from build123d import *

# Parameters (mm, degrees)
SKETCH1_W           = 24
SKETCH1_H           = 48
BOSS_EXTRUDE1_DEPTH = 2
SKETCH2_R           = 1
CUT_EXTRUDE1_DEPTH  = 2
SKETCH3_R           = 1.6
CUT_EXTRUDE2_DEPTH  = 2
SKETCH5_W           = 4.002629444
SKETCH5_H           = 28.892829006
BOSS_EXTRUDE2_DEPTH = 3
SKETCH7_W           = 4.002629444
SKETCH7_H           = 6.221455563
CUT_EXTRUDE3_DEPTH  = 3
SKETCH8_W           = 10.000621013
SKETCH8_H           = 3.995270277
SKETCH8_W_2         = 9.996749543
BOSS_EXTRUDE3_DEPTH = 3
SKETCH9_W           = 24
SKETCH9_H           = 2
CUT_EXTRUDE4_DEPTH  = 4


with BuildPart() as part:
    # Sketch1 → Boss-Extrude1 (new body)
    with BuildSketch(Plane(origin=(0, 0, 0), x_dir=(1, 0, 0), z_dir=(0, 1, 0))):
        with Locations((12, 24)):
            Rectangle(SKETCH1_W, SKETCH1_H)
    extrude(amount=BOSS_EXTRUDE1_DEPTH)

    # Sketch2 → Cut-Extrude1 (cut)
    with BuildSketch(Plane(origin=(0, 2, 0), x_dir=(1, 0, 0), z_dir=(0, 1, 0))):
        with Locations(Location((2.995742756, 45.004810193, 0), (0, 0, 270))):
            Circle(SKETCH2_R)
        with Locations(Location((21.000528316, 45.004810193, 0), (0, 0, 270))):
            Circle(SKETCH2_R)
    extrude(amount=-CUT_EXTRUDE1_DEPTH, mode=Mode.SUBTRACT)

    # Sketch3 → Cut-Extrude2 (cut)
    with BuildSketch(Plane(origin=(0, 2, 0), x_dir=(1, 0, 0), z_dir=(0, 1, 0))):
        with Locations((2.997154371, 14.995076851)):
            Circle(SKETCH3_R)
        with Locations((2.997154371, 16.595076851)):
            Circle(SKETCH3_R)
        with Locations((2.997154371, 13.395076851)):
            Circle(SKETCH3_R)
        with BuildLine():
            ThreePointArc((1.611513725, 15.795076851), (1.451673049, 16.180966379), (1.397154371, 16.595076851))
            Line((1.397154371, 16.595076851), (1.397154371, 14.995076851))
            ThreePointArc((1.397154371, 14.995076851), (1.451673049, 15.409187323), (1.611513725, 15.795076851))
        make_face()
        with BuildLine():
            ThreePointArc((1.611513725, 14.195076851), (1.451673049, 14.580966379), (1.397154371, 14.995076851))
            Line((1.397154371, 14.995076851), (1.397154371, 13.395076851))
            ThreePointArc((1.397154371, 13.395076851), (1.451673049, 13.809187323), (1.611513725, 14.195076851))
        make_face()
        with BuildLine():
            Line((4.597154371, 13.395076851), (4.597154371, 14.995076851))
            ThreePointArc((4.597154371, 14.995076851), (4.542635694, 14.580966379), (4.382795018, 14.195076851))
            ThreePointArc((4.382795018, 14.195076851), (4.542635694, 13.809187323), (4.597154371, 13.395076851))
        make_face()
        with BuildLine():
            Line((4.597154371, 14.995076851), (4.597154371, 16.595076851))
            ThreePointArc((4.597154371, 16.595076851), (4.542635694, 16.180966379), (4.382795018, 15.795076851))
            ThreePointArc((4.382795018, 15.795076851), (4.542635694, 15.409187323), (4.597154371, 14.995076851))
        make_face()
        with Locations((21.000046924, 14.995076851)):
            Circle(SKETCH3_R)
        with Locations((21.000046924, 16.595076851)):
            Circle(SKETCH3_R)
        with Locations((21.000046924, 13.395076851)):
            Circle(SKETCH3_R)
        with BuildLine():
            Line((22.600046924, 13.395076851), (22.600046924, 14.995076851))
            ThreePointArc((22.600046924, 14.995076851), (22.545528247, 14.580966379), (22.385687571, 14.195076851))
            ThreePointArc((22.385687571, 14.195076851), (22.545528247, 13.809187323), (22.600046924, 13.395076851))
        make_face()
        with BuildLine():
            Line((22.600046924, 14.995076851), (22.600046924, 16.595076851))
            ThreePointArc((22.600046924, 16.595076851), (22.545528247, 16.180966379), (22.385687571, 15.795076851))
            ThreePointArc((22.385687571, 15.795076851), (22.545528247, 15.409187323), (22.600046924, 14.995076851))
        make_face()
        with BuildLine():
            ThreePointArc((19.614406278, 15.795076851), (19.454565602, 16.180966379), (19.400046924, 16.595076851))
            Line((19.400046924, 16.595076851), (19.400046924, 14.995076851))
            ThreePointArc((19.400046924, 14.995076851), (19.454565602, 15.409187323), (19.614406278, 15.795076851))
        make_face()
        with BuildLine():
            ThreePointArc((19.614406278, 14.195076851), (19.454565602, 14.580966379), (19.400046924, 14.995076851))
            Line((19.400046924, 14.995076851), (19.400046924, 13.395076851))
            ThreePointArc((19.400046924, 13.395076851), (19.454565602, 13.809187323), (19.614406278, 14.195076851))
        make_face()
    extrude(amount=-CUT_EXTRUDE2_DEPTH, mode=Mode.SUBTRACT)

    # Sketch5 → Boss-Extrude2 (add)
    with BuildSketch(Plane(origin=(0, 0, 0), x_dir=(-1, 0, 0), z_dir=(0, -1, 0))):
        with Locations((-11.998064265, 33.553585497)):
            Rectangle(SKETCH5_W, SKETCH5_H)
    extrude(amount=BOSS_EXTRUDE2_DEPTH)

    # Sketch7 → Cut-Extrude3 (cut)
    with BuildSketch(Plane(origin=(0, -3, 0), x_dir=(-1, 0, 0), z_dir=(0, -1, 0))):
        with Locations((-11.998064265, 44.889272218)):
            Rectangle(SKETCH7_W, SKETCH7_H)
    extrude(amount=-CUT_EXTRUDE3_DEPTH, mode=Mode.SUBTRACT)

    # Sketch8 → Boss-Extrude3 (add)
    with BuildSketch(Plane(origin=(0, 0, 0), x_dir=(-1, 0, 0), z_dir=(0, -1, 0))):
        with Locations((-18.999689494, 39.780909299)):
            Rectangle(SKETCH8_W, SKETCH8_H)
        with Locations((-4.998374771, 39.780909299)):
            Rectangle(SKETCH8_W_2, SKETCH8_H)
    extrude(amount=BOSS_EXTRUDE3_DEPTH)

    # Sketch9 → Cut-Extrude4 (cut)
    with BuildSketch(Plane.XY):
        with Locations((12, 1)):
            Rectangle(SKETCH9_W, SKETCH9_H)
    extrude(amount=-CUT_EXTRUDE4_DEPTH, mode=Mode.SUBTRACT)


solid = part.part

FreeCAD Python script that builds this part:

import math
import FreeCAD as App
import Part
import Sketcher
Q = App.Units.Quantity

doc = App.newDocument("Part")
body = doc.addObject("PartDesign::Body", "Body")

sketch1 = doc.addObject("Sketcher::SketchObject", "Sketch")
body.addObject(sketch1)
sketch1.AttachmentSupport = (doc.XZ_Plane, [""])
sketch1.MapMode = "FlatFace"
sketch1.addGeometry(Part.LineSegment(App.Vector(0, -48, 0), App.Vector(0, 0, 0)), False)
sketch1.addGeometry(Part.LineSegment(App.Vector(0, 0, 0), App.Vector(24, 0, 0)), False)
sketch1.addGeometry(Part.LineSegment(App.Vector(24, 0, 0), App.Vector(24, -48, 0)), False)
sketch1.addGeometry(Part.LineSegment(App.Vector(24, -48, 0), App.Vector(0, -48, 0)), False)
sketch1.addConstraint(Sketcher.Constraint("Coincident", 0, 2, 1, 1))
sketch1.addConstraint(Sketcher.Constraint("Coincident", 1, 2, 2, 1))
sketch1.addConstraint(Sketcher.Constraint("Coincident", 2, 2, 3, 1))
sketch1.addConstraint(Sketcher.Constraint("Coincident", 3, 2, 0, 1))
sketch1.addConstraint(Sketcher.Constraint("Vertical", 0))
sketch1.addConstraint(Sketcher.Constraint("Horizontal", 1))
sketch1.addConstraint(Sketcher.Constraint("Vertical", 2))
sketch1.addConstraint(Sketcher.Constraint("Horizontal", 3))
sketch1.addConstraint(Sketcher.Constraint("Coincident", 0, 2, -1, 1))
sketch1.addConstraint(Sketcher.Constraint("DistanceX", 1, 1, 1, 2, Q("24 mm")))
sketch1.addConstraint(Sketcher.Constraint("DistanceY", 0, 1, 0, 2, Q("48 mm")))
pad1 = doc.addObject("PartDesign::Pad", "Pad")
body.addObject(pad1)
pad1.Profile = sketch1
pad1.Length = 2
pad1.Reversed = True

sketch2 = doc.addObject("Sketcher::SketchObject", "Sketch001")
body.addObject(sketch2)
sketch2.AttachmentSupport = (doc.XZ_Plane, [""])
sketch2.MapMode = "FlatFace"
sketch2.AttachmentOffset = App.Placement(App.Vector(0, 0, -2), App.Rotation())
sketch2.addGeometry(Part.Circle(App.Vector(2.995743, -45.00481, 0), App.Vector(0, 0, 1), 1), False)
sketch2.addGeometry(Part.Circle(App.Vector(21.000528, -45.00481, 0), App.Vector(0, 0, 1), 1), False)
sketch2.addConstraint(Sketcher.Constraint("Equal", 0, 1))
sketch2.addConstraint(Sketcher.Constraint("Horizontal", 0, 3, 1, 3))
sketch2.addConstraint(Sketcher.Constraint("Diameter", 0, Q("2 mm")))
sketch2.addConstraint(Sketcher.Constraint("DistanceY", 0, 3, -1, 1, Q("45.00481 mm")))
sketch2.addConstraint(Sketcher.Constraint("DistanceX", -1, 1, 1, 3, Q("21.000528 mm")))
sketch2.addConstraint(Sketcher.Constraint("DistanceX", -1, 1, 0, 3, Q("2.995743 mm")))
pocket1 = doc.addObject("PartDesign::Pocket", "Pocket")
body.addObject(pocket1)
pocket1.Profile = sketch2
pocket1.Length = 2
pocket1.Reversed = True

sketch3 = doc.addObject("Sketcher::SketchObject", "Sketch002")
body.addObject(sketch3)
sketch3.AttachmentSupport = (doc.XZ_Plane, [""])
sketch3.MapMode = "FlatFace"
sketch3.AttachmentOffset = App.Placement(App.Vector(0, 0, -2), App.Rotation())
sketch3.addGeometry(Part.ArcOfCircle(Part.Circle(App.Vector(2.997154, -13.395077, 0), App.Vector(0, 0, 1), 1.6), math.radians(0), math.radians(180)), False)
sketch3.addGeometry(Part.LineSegment(App.Vector(4.597154, -13.395077, 0), App.Vector(4.597154, -16.595077, 0)), False)
sketch3.addGeometry(Part.ArcOfCircle(Part.Circle(App.Vector(2.997154, -16.595077, 0), App.Vector(0, 0, 1), 1.6), math.radians(180), math.radians(360)), False)
sketch3.addGeometry(Part.LineSegment(App.Vector(1.397154, -16.595077, 0), App.Vector(1.397154, -13.395077, 0)), False)
sketch3.addGeometry(Part.LineSegment(App.Vector(22.600047, -13.395077, 0), App.Vector(22.600047, -16.595077, 0)), False)
sketch3.addGeometry(Part.ArcOfCircle(Part.Circle(App.Vector(21.000047, -16.595077, 0), App.Vector(0, 0, 1), 1.6), math.radians(180), math.radians(360)), False)
sketch3.addGeometry(Part.LineSegment(App.Vector(19.400047, -16.595077, 0), App.Vector(19.400047, -13.395077, 0)), False)
sketch3.addGeometry(Part.ArcOfCircle(Part.Circle(App.Vector(21.000047, -13.395077, 0), App.Vector(0, 0, 1), 1.6), math.radians(0), math.radians(180)), False)
sketch3.addConstraint(Sketcher.Constraint("Tangent", 0, 1, 1, 1))
sketch3.addConstraint(Sketcher.Constraint("Tangent", 1, 2, 2, 2))
sketch3.addConstraint(Sketcher.Constraint("Tangent", 2, 1, 3, 1))
sketch3.addConstraint(Sketcher.Constraint("Tangent", 3, 2, 0, 2))
sketch3.addConstraint(Sketcher.Constraint("Tangent", 4, 2, 5, 2))
sketch3.addConstraint(Sketcher.Constraint("Tangent", 5, 1, 6, 1))
sketch3.addConstraint(Sketcher.Constraint("Tangent", 6, 2, 7, 2))
sketch3.addConstraint(Sketcher.Constraint("Tangent", 7, 1, 4, 1))
sketch3.addConstraint(Sketcher.Constraint("Vertical", 1))
sketch3.addConstraint(Sketcher.Constraint("Vertical", 3))
sketch3.addConstraint(Sketcher.Constraint("Vertical", 4))
sketch3.addConstraint(Sketcher.Constraint("Vertical", 6))
sketch3.addConstraint(Sketcher.Constraint("Equal", 2, 5))
sketch3.addConstraint(Sketcher.Constraint("Horizontal", 2, 3, 5, 3))
sketch3.addConstraint(Sketcher.Constraint("Horizontal", 0, 3, 7, 3))
sketch3.addConstraint(Sketcher.Constraint("Radius", 0, Q("1.6 mm")))
sketch3.addConstraint(Sketcher.Constraint("DistanceY", 1, 2, 1, 1, Q("3.2 mm")))
sketch3.addConstraint(Sketcher.Constraint("DistanceX", -1, 1, 0, 3, Q("2.997154 mm")))
sketch3.addConstraint(Sketcher.Constraint("DistanceY", 0, 3, -1, 1, Q("13.395077 mm")))
sketch3.addConstraint(Sketcher.Constraint("DistanceX", -1, 1, 5, 3, Q("21.000047 mm")))
pocket2 = doc.addObject("PartDesign::Pocket", "Pocket001")
body.addObject(pocket2)
pocket2.Profile = sketch3
pocket2.Length = 2
pocket2.Reversed = True

sketch4 = doc.addObject("Sketcher::SketchObject", "Sketch003")
body.addObject(sketch4)
sketch4.AttachmentSupport = (doc.XZ_Plane, [""])
sketch4.MapMode = "FlatFace"
sketch4.addGeometry(Part.LineSegment(App.Vector(13.999379, -48, 0), App.Vector(13.999379, -19.107171, 0)), False)
sketch4.addGeometry(Part.LineSegment(App.Vector(13.999379, -19.107171, 0), App.Vector(9.99675, -19.107171, 0)), False)
sketch4.addGeometry(Part.LineSegment(App.Vector(9.99675, -19.107171, 0), App.Vector(9.99675, -48, 0)), False)
sketch4.addGeometry(Part.LineSegment(App.Vector(9.99675, -48, 0), App.Vector(13.999379, -48, 0)), False)
sketch4.addConstraint(Sketcher.Constraint("Coincident", 0, 2, 1, 1))
sketch4.addConstraint(Sketcher.Constraint("Coincident", 1, 2, 2, 1))
sketch4.addConstraint(Sketcher.Constraint("Coincident", 2, 2, 3, 1))
sketch4.addConstraint(Sketcher.Constraint("Coincident", 3, 2, 0, 1))
sketch4.addConstraint(Sketcher.Constraint("Vertical", 0))
sketch4.addConstraint(Sketcher.Constraint("Horizontal", 1))
sketch4.addConstraint(Sketcher.Constraint("Vertical", 2))
sketch4.addConstraint(Sketcher.Constraint("Horizontal", 3))
sketch4.addConstraint(Sketcher.Constraint("DistanceY", 2, 2, -1, 1, Q("48 mm")))
sketch4.addConstraint(Sketcher.Constraint("DistanceX", 1, 2, 1, 1, Q("4.002629 mm")))
sketch4.addConstraint(Sketcher.Constraint("DistanceY", 0, 1, 0, 2, Q("28.892829 mm")))
sketch4.addConstraint(Sketcher.Constraint("DistanceX", -1, 1, 0, 2, Q("13.999379 mm")))
pad2 = doc.addObject("PartDesign::Pad", "Pad001")
body.addObject(pad2)
pad2.Profile = sketch4
pad2.Length = 3

sketch5 = doc.addObject("Sketcher::SketchObject", "Sketch004")
body.addObject(sketch5)
sketch5.AttachmentSupport = (doc.XZ_Plane, [""])
sketch5.MapMode = "FlatFace"
sketch5.AttachmentOffset = App.Placement(App.Vector(0, 0, 3), App.Rotation())
sketch5.addGeometry(Part.LineSegment(App.Vector(13.999379, -48, 0), App.Vector(13.999379, -41.778544, 0)), False)
sketch5.addGeometry(Part.LineSegment(App.Vector(13.999379, -41.778544, 0), App.Vector(9.99675, -41.778544, 0)), False)
sketch5.addGeometry(Part.LineSegment(App.Vector(9.99675, -41.778544, 0), App.Vector(9.99675, -48, 0)), False)
sketch5.addGeometry(Part.LineSegment(App.Vector(9.99675, -48, 0), App.Vector(13.999379, -48, 0)), False)
sketch5.addConstraint(Sketcher.Constraint("Coincident", 0, 2, 1, 1))
sketch5.addConstraint(Sketcher.Constraint("Coincident", 1, 2, 2, 1))
sketch5.addConstraint(Sketcher.Constraint("Coincident", 2, 2, 3, 1))
sketch5.addConstraint(Sketcher.Constraint("Coincident", 3, 2, 0, 1))
sketch5.addConstraint(Sketcher.Constraint("Vertical", 0))
sketch5.addConstraint(Sketcher.Constraint("Horizontal", 1))
sketch5.addConstraint(Sketcher.Constraint("Vertical", 2))
sketch5.addConstraint(Sketcher.Constraint("Horizontal", 3))
sketch5.addConstraint(Sketcher.Constraint("DistanceY", 2, 2, -1, 1, Q("48 mm")))
sketch5.addConstraint(Sketcher.Constraint("DistanceX", 1, 2, 1, 1, Q("4.002629 mm")))
sketch5.addConstraint(Sketcher.Constraint("DistanceY", 0, 1, 0, 2, Q("6.221456 mm")))
sketch5.addConstraint(Sketcher.Constraint("DistanceX", -1, 1, 0, 2, Q("13.999379 mm")))
pocket3 = doc.addObject("PartDesign::Pocket", "Pocket002")
body.addObject(pocket3)
pocket3.Profile = sketch5
pocket3.Length = 3

sketch6 = doc.addObject("Sketcher::SketchObject", "Sketch005")
body.addObject(sketch6)
sketch6.AttachmentSupport = (doc.XZ_Plane, [""])
sketch6.MapMode = "FlatFace"
sketch6.addGeometry(Part.LineSegment(App.Vector(24, -41.778544, 0), App.Vector(24, -37.783274, 0)), False)
sketch6.addGeometry(Part.LineSegment(App.Vector(24, -37.783274, 0), App.Vector(13.999379, -37.783274, 0)), False)
sketch6.addGeometry(Part.LineSegment(App.Vector(13.999379, -37.783274, 0), App.Vector(13.999379, -41.778544, 0)), False)
sketch6.addGeometry(Part.LineSegment(App.Vector(13.999379, -41.778544, 0), App.Vector(24, -41.778544, 0)), False)
sketch6.addGeometry(Part.LineSegment(App.Vector(9.99675, -41.778544, 0), App.Vector(9.99675, -37.783274, 0)), False)
sketch6.addGeometry(Part.LineSegment(App.Vector(9.99675, -37.783274, 0), App.Vector(0, -37.783274, 0)), False)
sketch6.addGeometry(Part.LineSegment(App.Vector(0, -37.783274, 0), App.Vector(0, -41.778544, 0)), False)
sketch6.addGeometry(Part.LineSegment(App.Vector(0, -41.778544, 0), App.Vector(9.99675, -41.778544, 0)), False)
sketch6.addConstraint(Sketcher.Constraint("Coincident", 0, 2, 1, 1))
sketch6.addConstraint(Sketcher.Constraint("Coincident", 1, 2, 2, 1))
sketch6.addConstraint(Sketcher.Constraint("Coincident", 2, 2, 3, 1))
sketch6.addConstraint(Sketcher.Constraint("Coincident", 3, 2, 0, 1))
sketch6.addConstraint(Sketcher.Constraint("Coincident", 4, 2, 5, 1))
sketch6.addConstraint(Sketcher.Constraint("Coincident", 5, 2, 6, 1))
sketch6.addConstraint(Sketcher.Constraint("Coincident", 6, 2, 7, 1))
sketch6.addConstraint(Sketcher.Constraint("Coincident", 7, 2, 4, 1))
sketch6.addConstraint(Sketcher.Constraint("Vertical", 0))
sketch6.addConstraint(Sketcher.Constraint("Horizontal", 1))
sketch6.addConstraint(Sketcher.Constraint("Vertical", 2))
sketch6.addConstraint(Sketcher.Constraint("Horizontal", 3))
sketch6.addConstraint(Sketcher.Constraint("Vertical", 4))
sketch6.addConstraint(Sketcher.Constraint("Horizontal", 5))
sketch6.addConstraint(Sketcher.Constraint("Vertical", 6))
sketch6.addConstraint(Sketcher.Constraint("Horizontal", 7))
sketch6.addConstraint(Sketcher.Constraint("PointOnObject", 5, 2, -2))
sketch6.addConstraint(Sketcher.Constraint("Horizontal", 1, 2, 4, 2))
sketch6.addConstraint(Sketcher.Constraint("Horizontal", 3, 2, 6, 2))
sketch6.addConstraint(Sketcher.Constraint("DistanceX", -1, 1, 0, 2, Q("24 mm")))
sketch6.addConstraint(Sketcher.Constraint("DistanceX", 1, 2, 1, 1, Q("10.000621 mm")))
sketch6.addConstraint(Sketcher.Constraint("DistanceX", 5, 2, 5, 1, Q("9.99675 mm")))
sketch6.addConstraint(Sketcher.Constraint("DistanceY", 0, 1, 0, 2, Q("3.99527 mm")))
sketch6.addConstraint(Sketcher.Constraint("DistanceY", 0, 2, -1, 1, Q("37.783274 mm")))
pad3 = doc.addObject("PartDesign::Pad", "Pad002")
body.addObject(pad3)
pad3.Profile = sketch6
pad3.Length = 3

sketch7 = doc.addObject("Sketcher::SketchObject", "Sketch006")
body.addObject(sketch7)
sketch7.AttachmentSupport = (doc.XY_Plane, [""])
sketch7.MapMode = "FlatFace"
sketch7.addGeometry(Part.LineSegment(App.Vector(0, 2, 0), App.Vector(0, 0, 0)), False)
sketch7.addGeometry(Part.LineSegment(App.Vector(0, 0, 0), App.Vector(24, 0, 0)), False)
sketch7.addGeometry(Part.LineSegment(App.Vector(24, 0, 0), App.Vector(24, 2, 0)), False)
sketch7.addGeometry(Part.LineSegment(App.Vector(24, 2, 0), App.Vector(0, 2, 0)), False)
sketch7.addConstraint(Sketcher.Constraint("Coincident", 0, 2, 1, 1))
sketch7.addConstraint(Sketcher.Constraint("Coincident", 1, 2, 2, 1))
sketch7.addConstraint(Sketcher.Constraint("Coincident", 2, 2, 3, 1))
sketch7.addConstraint(Sketcher.Constraint("Coincident", 3, 2, 0, 1))
sketch7.addConstraint(Sketcher.Constraint("Vertical", 0))
sketch7.addConstraint(Sketcher.Constraint("Horizontal", 1))
sketch7.addConstraint(Sketcher.Constraint("Vertical", 2))
sketch7.addConstraint(Sketcher.Constraint("Horizontal", 3))
sketch7.addConstraint(Sketcher.Constraint("Coincident", 0, 2, -1, 1))
sketch7.addConstraint(Sketcher.Constraint("DistanceX", 1, 1, 1, 2, Q("24 mm")))
sketch7.addConstraint(Sketcher.Constraint("DistanceY", 0, 2, 0, 1, Q("2 mm")))
pocket4 = doc.addObject("PartDesign::Pocket", "Pocket003")
body.addObject(pocket4)
pocket4.Profile = sketch7
pocket4.Length = 4

doc.recompute()
